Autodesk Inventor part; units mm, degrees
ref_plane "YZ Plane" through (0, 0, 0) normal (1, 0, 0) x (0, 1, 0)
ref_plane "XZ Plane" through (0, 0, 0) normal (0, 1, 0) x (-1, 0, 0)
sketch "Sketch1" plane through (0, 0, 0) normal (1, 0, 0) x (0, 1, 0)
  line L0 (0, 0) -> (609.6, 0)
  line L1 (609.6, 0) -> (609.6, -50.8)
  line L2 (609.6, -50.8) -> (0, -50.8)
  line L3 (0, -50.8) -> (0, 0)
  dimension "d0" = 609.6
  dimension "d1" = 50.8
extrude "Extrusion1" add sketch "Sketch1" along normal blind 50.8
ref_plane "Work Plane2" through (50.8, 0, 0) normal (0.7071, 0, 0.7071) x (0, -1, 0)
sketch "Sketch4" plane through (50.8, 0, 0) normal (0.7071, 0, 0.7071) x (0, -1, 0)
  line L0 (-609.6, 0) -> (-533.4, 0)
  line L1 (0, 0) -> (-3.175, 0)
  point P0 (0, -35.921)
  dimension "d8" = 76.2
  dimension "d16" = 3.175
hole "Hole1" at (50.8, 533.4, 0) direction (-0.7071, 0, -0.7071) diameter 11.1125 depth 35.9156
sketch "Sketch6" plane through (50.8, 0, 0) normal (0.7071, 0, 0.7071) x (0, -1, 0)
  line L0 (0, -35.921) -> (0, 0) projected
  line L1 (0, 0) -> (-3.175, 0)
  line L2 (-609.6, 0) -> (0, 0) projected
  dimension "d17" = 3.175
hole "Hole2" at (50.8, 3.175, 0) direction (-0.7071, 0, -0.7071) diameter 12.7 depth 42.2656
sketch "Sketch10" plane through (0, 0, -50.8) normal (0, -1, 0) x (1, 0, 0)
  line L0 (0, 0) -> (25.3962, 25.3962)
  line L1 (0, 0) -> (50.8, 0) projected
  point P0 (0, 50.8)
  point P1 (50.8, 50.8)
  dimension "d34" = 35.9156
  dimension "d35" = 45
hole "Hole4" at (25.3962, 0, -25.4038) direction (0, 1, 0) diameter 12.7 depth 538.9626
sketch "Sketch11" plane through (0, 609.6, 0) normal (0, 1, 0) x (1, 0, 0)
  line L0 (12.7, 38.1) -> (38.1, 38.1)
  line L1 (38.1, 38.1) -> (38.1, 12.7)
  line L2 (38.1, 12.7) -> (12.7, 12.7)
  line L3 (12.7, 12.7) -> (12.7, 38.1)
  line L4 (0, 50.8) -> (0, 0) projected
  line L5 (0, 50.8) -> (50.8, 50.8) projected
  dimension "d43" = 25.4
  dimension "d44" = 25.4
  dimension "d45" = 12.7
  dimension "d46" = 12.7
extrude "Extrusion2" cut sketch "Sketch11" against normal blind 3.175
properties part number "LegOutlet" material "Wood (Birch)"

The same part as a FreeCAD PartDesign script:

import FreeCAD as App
import Part
import Sketcher
from FreeCAD import Vector
Q = App.Units.Quantity


def add_polygon(sketch, points):
    """Adds a closed chain of lines whose ends are joined by coincident constraints."""
    first, n = sketch.GeometryCount, len(points)
    for a, b in zip(points, points[1:] + points[:1]):
        sketch.addGeometry(Part.LineSegment(App.Vector(*a, 0), App.Vector(*b, 0)), False)
    for i in range(n):
        sketch.addConstraint(Sketcher.Constraint("Coincident", first + i, 2, first + (i + 1) % n, 1))

doc = App.newDocument("Part")
body = doc.addObject("PartDesign::Body", "Body")

sketch1 = body.newObject("Sketcher::SketchObject", "Sketch")
sketch1.AttachmentSupport = (doc.getObject("YZ_Plane"), [""])
sketch1.MapMode = "FlatFace"
add_polygon(sketch1, [(609.6, 0), (0, 0), (0, -50.8), (609.6, -50.8)])
sketch1.addConstraint([
    Sketcher.Constraint("Horizontal", 0),
    Sketcher.Constraint("Vertical", 1),
    Sketcher.Constraint("Horizontal", 2),
    Sketcher.Constraint("Vertical", 3),
    Sketcher.Constraint("Coincident", 0, 2, -1, 1),
    Sketcher.Constraint("DistanceX", 0, 2, 0, 1, Q("24 in")),
    Sketcher.Constraint("DistanceY", 1, 2, 1, 1, Q("2 in")),
])
pad1 = body.newObject("PartDesign::Pad", "Pad")
pad1.Profile = sketch1
pad1.Length = Q("2 in")

sketch2 = body.newObject("Sketcher::SketchObject", "Sketch001")
sketch2.Placement = App.Placement(Vector(25.4, 0, 25.4), App.Rotation(Vector(0.707106781, 0, -0.707106781), Vector(0, 0.999999999, 0), Vector(0.707106781, 0, 0.707106781), "ZXY"))
sketch2.addGeometry(Part.Circle(Vector(35.921024, 533.399999, 0), Vector(0, 0, 1), 5.55625), False)
sketch2.addConstraint([
    Sketcher.Constraint("Diameter", 0, Q("0.4375 in")),
    Sketcher.Constraint("DistanceY", -1, 1, 0, 3, Q("21 in")),
    Sketcher.Constraint("DistanceX", -1, 1, 0, 3, Q("35.921 mm")),
])
doc.recompute()
hole = body.newObject("PartDesign::Hole", "Hole")
hole.Profile = sketch2
hole.ThreadType = "None"
hole.Diameter = Q("0.4375 in")
hole.DepthType = "Dimension"
hole.Depth = Q("1.414 in")
hole.DrillPoint = "Flat"

sketch3 = body.newObject("Sketcher::SketchObject", "Sketch002")
sketch3.Placement = App.Placement(Vector(25.4, 0, 25.4), App.Rotation(Vector(0.707106781, 0, -0.707106781), Vector(0, 0.999999999, 0), Vector(0.707106781, 0, 0.707106781), "ZXY"))
sketch3.addGeometry(Part.Circle(Vector(35.921024, 3.175, 0), Vector(0, 0, 1), 6.35), False)
sketch3.addConstraint([
    Sketcher.Constraint("Diameter", 0, Q("0.5 in")),
    Sketcher.Constraint("DistanceY", -1, 1, 0, 3, Q("0.125 in")),
    Sketcher.Constraint("DistanceX", -1, 1, 0, 3, Q("35.921 mm")),
])
doc.recompute()
hole2 = body.newObject("PartDesign::Hole", "Hole001")
hole2.Profile = sketch3
hole2.ThreadType = "None"
hole2.Diameter = Q("0.5 in")
hole2.DepthType = "Dimension"
hole2.Depth = Q("1.664 in")
hole2.DrillPoint = "Flat"

sketch4 = body.newObject("Sketcher::SketchObject", "Sketch003")
sketch4.AttachmentSupport = (doc.getObject("XZ_Plane"), [""])
sketch4.MapMode = "FlatFace"
sketch4.addGeometry(Part.Circle(Vector(25.3962, -25.4038, 0), Vector(0, 0, 1), 6.35), False)
sketch4.addConstraint([
    Sketcher.Constraint("Diameter", 0, Q("0.5 in")),
    Sketcher.Constraint("DistanceX", -1, 1, 0, 3, Q("25.3962 mm")),
    Sketcher.Constraint("DistanceY", 0, 3, -1, 1, Q("25.4038 mm")),
])
doc.recompute()
hole3 = body.newObject("PartDesign::Hole", "Hole002")
hole3.Profile = sketch4
hole3.ThreadType = "None"
hole3.Diameter = Q("0.5 in")
hole3.DepthType = "Dimension"
hole3.Depth = Q("21.219 in")
hole3.DrillPoint = "Flat"

sketch5 = body.newObject("Sketcher::SketchObject", "Sketch004")
sketch5.AttachmentSupport = (doc.getObject("XZ_Plane"), [""])
sketch5.MapMode = "FlatFace"
sketch5.AttachmentOffset = App.Placement(Vector(0, 0, -24 * 25.4), App.Rotation())
add_polygon(sketch5, [(38.1, -38.1), (12.7, -38.1), (12.7, -12.7), (38.1, -12.7)])
sketch5.addConstraint([
    Sketcher.Constraint("Horizontal", 0),
    Sketcher.Constraint("Vertical", 1),
    Sketcher.Constraint("Horizontal", 2),
    Sketcher.Constraint("Vertical", 3),
    Sketcher.Constraint("Equal", 2, 1),
    Sketcher.Constraint("DistanceX", 0, 2, 0, 1, Q("1 in")),
    Sketcher.Constraint("DistanceX", -1, 1, 0, 2, Q("0.5 in")),
    Sketcher.Constraint("DistanceY", 1, 2, -1, 1, Q("0.5 in")),
])
pocket1 = body.newObject("PartDesign::Pocket", "Pocket")
pocket1.Profile = sketch5
pocket1.Length = Q("0.125 in")
pocket1.Reversed = True

doc.recompute()
